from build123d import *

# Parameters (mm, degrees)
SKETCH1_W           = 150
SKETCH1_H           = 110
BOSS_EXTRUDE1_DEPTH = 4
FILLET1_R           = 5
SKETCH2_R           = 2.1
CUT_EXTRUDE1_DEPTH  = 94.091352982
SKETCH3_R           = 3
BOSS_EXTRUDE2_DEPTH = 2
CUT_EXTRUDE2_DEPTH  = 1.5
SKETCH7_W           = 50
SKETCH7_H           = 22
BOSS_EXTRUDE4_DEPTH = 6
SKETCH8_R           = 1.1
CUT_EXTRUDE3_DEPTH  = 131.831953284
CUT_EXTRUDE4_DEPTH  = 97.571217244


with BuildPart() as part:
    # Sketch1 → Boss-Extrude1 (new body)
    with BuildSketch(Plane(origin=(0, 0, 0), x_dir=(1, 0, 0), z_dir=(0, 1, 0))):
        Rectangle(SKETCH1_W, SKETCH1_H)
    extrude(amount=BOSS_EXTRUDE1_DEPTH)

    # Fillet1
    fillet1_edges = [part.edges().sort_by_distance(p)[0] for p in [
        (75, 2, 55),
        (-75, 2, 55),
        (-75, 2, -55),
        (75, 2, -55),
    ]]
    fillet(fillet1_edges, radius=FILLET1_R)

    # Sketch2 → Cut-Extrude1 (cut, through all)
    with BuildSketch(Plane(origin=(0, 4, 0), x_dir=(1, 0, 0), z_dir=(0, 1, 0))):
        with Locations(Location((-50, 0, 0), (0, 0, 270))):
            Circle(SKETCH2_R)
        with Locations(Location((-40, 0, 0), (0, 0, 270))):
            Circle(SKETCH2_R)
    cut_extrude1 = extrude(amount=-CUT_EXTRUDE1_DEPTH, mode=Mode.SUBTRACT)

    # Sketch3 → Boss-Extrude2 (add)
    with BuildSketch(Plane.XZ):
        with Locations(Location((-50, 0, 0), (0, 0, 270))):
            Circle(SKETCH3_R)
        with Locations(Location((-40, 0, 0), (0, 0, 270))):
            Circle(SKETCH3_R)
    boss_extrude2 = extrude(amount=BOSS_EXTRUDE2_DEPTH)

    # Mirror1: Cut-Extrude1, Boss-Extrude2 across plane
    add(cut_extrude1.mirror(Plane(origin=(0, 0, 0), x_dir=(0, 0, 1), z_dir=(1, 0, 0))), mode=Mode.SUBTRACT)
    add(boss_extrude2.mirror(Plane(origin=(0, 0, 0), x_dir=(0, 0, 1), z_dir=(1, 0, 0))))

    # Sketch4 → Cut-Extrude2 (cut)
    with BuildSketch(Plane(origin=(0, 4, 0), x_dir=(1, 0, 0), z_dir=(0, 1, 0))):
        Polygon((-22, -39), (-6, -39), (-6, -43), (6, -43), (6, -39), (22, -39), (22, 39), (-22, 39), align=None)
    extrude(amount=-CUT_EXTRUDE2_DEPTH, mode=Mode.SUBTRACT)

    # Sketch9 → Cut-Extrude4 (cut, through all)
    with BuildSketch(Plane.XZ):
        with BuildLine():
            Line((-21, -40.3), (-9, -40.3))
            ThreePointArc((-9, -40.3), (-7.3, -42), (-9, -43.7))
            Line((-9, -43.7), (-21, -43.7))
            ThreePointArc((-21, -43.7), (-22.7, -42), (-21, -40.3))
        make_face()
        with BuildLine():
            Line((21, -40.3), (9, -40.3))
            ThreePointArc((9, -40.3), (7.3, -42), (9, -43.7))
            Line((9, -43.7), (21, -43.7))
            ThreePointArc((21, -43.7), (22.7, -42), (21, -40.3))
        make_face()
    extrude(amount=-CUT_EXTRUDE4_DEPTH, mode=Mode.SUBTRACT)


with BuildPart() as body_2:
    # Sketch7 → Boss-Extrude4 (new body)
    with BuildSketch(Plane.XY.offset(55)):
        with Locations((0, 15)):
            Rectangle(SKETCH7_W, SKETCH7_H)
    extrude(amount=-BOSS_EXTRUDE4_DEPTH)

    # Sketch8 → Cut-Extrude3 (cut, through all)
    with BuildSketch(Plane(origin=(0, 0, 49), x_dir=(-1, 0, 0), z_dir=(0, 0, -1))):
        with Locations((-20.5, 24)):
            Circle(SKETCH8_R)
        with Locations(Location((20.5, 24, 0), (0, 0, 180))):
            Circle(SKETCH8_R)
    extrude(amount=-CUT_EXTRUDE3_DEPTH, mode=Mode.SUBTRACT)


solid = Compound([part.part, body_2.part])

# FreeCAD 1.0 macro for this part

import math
import FreeCAD as App
import Part
import Sketcher
Q = App.Units.Quantity


def edges_at(feature, points):
    """Names of the edges that pass closest to the given points."""
    edges = feature.Shape.Edges
    near = lambda p: min(range(len(edges)), key=lambda i: edges[i].distToShape(Part.Vertex(*p))[0])
    return sorted({f"Edge{near(p) + 1}" for p in points})


def add_polygon(sketch, points):
    """Adds a closed chain of lines whose ends are joined by coincident constraints."""
    first, n = sketch.GeometryCount, len(points)
    for a, b in zip(points, points[1:] + points[:1]):
        sketch.addGeometry(Part.LineSegment(App.Vector(*a, 0), App.Vector(*b, 0)), False)
    for i in range(n):
        sketch.addConstraint(Sketcher.Constraint("Coincident", first + i, 2, first + (i + 1) % n, 1))

doc = App.newDocument("Part")
body = doc.addObject("PartDesign::Body", "Body")

# Sketch on XZ plane
sketch1 = doc.addObject("Sketcher::SketchObject", "Sketch")
body.addObject(sketch1)
sketch1.AttachmentSupport = (doc.XZ_Plane, [""])
sketch1.MapMode = "FlatFace"
add_polygon(sketch1, [(-75, -55), (-75, 55), (75, 55), (75, -55)])  # lines 0-3
sketch1.addConstraint([
    Sketcher.Constraint("Vertical", 0),
    Sketcher.Constraint("Horizontal", 1),
    Sketcher.Constraint("Vertical", 2),
    Sketcher.Constraint("Horizontal", 3),
    Sketcher.Constraint("Symmetric", 0, 2, 2, 2, -1, 1),
    Sketcher.Constraint("DistanceX", 1, 1, 1, 2, Q("150 mm")),
    Sketcher.Constraint("DistanceY", 0, 1, 0, 2, Q("110 mm")),
])
pad1 = doc.addObject("PartDesign::Pad", "Pad")
body.addObject(pad1)
pad1.Profile = sketch1
pad1.Length = 4
pad1.Reversed = True
doc.recompute()

fillet = doc.addObject("PartDesign::Fillet", "Fillet")
body.addObject(fillet)
fillet.Base = (pad1, edges_at(pad1, [
    (75, 2, 55),
    (-75, 2, 55),
    (-75, 2, -55),
    (75, 2, -55),
]))
fillet.Radius = 5

# Sketch on XZ plane
sketch2 = doc.addObject("Sketcher::SketchObject", "Sketch001")
body.addObject(sketch2)
sketch2.AttachmentSupport = (doc.XZ_Plane, [""])
sketch2.MapMode = "FlatFace"
sketch2.AttachmentOffset = App.Placement(App.Vector(0, 0, -4), App.Rotation())
sketch2.addGeometry([
    Part.Circle(App.Vector(-50, 0, 0), App.Vector(0, 0, 1), 2.1),
    Part.Circle(App.Vector(-40, 0, 0), App.Vector(0, 0, 1), 2.1),
], False)
sketch2.addConstraint([
    Sketcher.Constraint("Equal", 0, 1),
    Sketcher.Constraint("PointOnObject", 0, 3, -1),
    Sketcher.Constraint("PointOnObject", 1, 3, -1),
    Sketcher.Constraint("Diameter", 0, Q("4.2 mm")),
    Sketcher.Constraint("DistanceX", 0, 3, -1, 1, Q("50 mm")),
    Sketcher.Constraint("DistanceX", 1, 3, -1, 1, Q("40 mm")),
])
pocket1 = doc.addObject("PartDesign::Pocket", "Pocket")
body.addObject(pocket1)
pocket1.Profile = sketch2
pocket1.Type = "ThroughAll"
pocket1.Reversed = True

# Sketch on XZ plane
sketch3 = doc.addObject("Sketcher::SketchObject", "Sketch002")
body.addObject(sketch3)
sketch3.AttachmentSupport = (doc.XZ_Plane, [""])
sketch3.MapMode = "FlatFace"
sketch3.addGeometry([
    Part.Circle(App.Vector(-50, 0, 0), App.Vector(0, 0, 1), 3),
    Part.Circle(App.Vector(-40, 0, 0), App.Vector(0, 0, 1), 3),
], False)
sketch3.addConstraint([
    Sketcher.Constraint("Equal", 0, 1),
    Sketcher.Constraint("PointOnObject", 0, 3, -1),
    Sketcher.Constraint("PointOnObject", 1, 3, -1),
    Sketcher.Constraint("Diameter", 0, Q("6 mm")),
    Sketcher.Constraint("DistanceX", 0, 3, -1, 1, Q("50 mm")),
    Sketcher.Constraint("DistanceX", 1, 3, -1, 1, Q("40 mm")),
])
pad2 = doc.addObject("PartDesign::Pad", "Pad001")
body.addObject(pad2)
pad2.Profile = sketch3
pad2.Length = 2
doc.recompute()

mirrored = doc.addObject("PartDesign::Mirrored", "Mirrored")
body.addObject(mirrored)
mirrored.Originals = [pocket1, pad2]
mirrored.MirrorPlane = (doc.YZ_Plane, [""])
body.Tip = mirrored

# Sketch on XZ plane
sketch4 = doc.addObject("Sketcher::SketchObject", "Sketch003")
body.addObject(sketch4)
sketch4.AttachmentSupport = (doc.XZ_Plane, [""])
sketch4.MapMode = "FlatFace"
sketch4.AttachmentOffset = App.Placement(App.Vector(0, 0, -4), App.Rotation())
add_polygon(sketch4, [(-22, 39), (-6, 39), (-6, 43), (6, 43), (6, 39), (22, 39), (22, -39), (-22, -39)])  # lines 0-7
sketch4.addConstraint([
    Sketcher.Constraint("Horizontal", 0),
    Sketcher.Constraint("Vertical", 1),
    Sketcher.Constraint("Horizontal", 2),
    Sketcher.Constraint("Vertical", 3),
    Sketcher.Constraint("Horizontal", 4),
    Sketcher.Constraint("Vertical", 5),
    Sketcher.Constraint("Horizontal", 6),
    Sketcher.Constraint("Vertical", 7),
    Sketcher.Constraint("Symmetric", 4, 2, 6, 2, -1, 1),
    Sketcher.Constraint("Symmetric", 0, 2, 3, 2, -2),
    Sketcher.Constraint("DistanceX", 0, 1, 0, 2, Q("16 mm")),
    Sketcher.Constraint("DistanceX", 2, 1, 2, 2, Q("12 mm")),
    Sketcher.Constraint("DistanceY", 1, 1, 1, 2, Q("4 mm")),
    Sketcher.Constraint("DistanceY", 5, 2, 5, 1, Q("78 mm")),
])
pocket2 = doc.addObject("PartDesign::Pocket", "Pocket001")
body.addObject(pocket2)
pocket2.Profile = sketch4
pocket2.Length = 1.5
pocket2.Reversed = True

# Sketch on XZ plane
sketch5 = doc.addObject("Sketcher::SketchObject", "Sketch004")
body.addObject(sketch5)
sketch5.AttachmentSupport = (doc.XZ_Plane, [""])
sketch5.MapMode = "FlatFace"
sketch5.addGeometry([
    Part.LineSegment(App.Vector(-9, -40.3, 0), App.Vector(-21, -40.3, 0)),  # 0
    Part.ArcOfCircle(Part.Circle(App.Vector(-21, -42, 0), App.Vector(0, 0, 1), 1.7), math.radians(90), math.radians(270)),  # 1
    Part.LineSegment(App.Vector(-21, -43.7, 0), App.Vector(-9, -43.7, 0)),  # 2
    Part.ArcOfCircle(Part.Circle(App.Vector(-9, -42, 0), App.Vector(0, 0, 1), 1.7), math.radians(-90), math.radians(90)),  # 3
    Part.LineSegment(App.Vector(21, -40.3, 0), App.Vector(9, -40.3, 0)),  # 4
    Part.ArcOfCircle(Part.Circle(App.Vector(9, -42, 0), App.Vector(0, 0, 1), 1.7), math.radians(90), math.radians(270)),  # 5
    Part.LineSegment(App.Vector(9, -43.7, 0), App.Vector(21, -43.7, 0)),  # 6
    Part.ArcOfCircle(Part.Circle(App.Vector(21, -42, 0), App.Vector(0, 0, 1), 1.7), math.radians(-90), math.radians(90)),  # 7
], False)
sketch5.addConstraint([
    Sketcher.Constraint("Tangent", 0, 2, 1, 1),
    Sketcher.Constraint("Tangent", 1, 2, 2, 1),
    Sketcher.Constraint("Tangent", 2, 2, 3, 1),
    Sketcher.Constraint("Tangent", 3, 2, 0, 1),
    Sketcher.Constraint("Tangent", 4, 2, 5, 1),
    Sketcher.Constraint("Tangent", 5, 2, 6, 1),
    Sketcher.Constraint("Tangent", 6, 2, 7, 1),
    Sketcher.Constraint("Tangent", 7, 2, 4, 1),
    Sketcher.Constraint("Horizontal", 0),
    Sketcher.Constraint("Horizontal", 2),
    Sketcher.Constraint("Horizontal", 4),
    Sketcher.Constraint("Horizontal", 6),
    Sketcher.Constraint("Equal", 3, 5),
    Sketcher.Constraint("Symmetric", 3, 3, 5, 3, -2),
    Sketcher.Constraint("Equal", 2, 4),
    Sketcher.Constraint("Radius", 1, Q("1.7 mm")),
    Sketcher.Constraint("DistanceX", 0, 2, 0, 1, Q("12 mm")),
    Sketcher.Constraint("DistanceX", 1, 3, -1, 1, Q("21 mm")),
    Sketcher.Constraint("DistanceY", 1, 3, -1, 1, Q("42 mm")),
])
pocket3 = doc.addObject("PartDesign::Pocket", "Pocket002")
body.addObject(pocket3)
pocket3.Profile = sketch5
pocket3.Type = "ThroughAll"
body2 = doc.addObject("PartDesign::Body", "Body001")

# Sketch on XY plane
sketch6 = doc.addObject("Sketcher::SketchObject", "Sketch005")
body2.addObject(sketch6)
sketch6.AttachmentSupport = (doc.getObject("XY_Plane001"), [""])
sketch6.MapMode = "FlatFace"
sketch6.AttachmentOffset = App.Placement(App.Vector(0, 0, 55), App.Rotation())
add_polygon(sketch6, [(-25, 26), (-25, 4), (25, 4), (25, 26)])  # lines 0-3
sketch6.addConstraint([
    Sketcher.Constraint("Vertical", 0),
    Sketcher.Constraint("Horizontal", 1),
    Sketcher.Constraint("Vertical", 2),
    Sketcher.Constraint("Horizontal", 3),
    Sketcher.Constraint("DistanceX", 1, 1, 1, 2, Q("50 mm")),
    Sketcher.Constraint("DistanceY", 0, 2, 0, 1, Q("22 mm")),
    Sketcher.Constraint("DistanceX", 0, 2, -1, 1, Q("25 mm")),
    Sketcher.Constraint("DistanceY", -1, 1, 0, 2, Q("4 mm")),
])
pad3 = doc.addObject("PartDesign::Pad", "Pad002")
body2.addObject(pad3)
pad3.Profile = sketch6
pad3.Length = 6
pad3.Reversed = True

# Sketch on XY plane
sketch7 = doc.addObject("Sketcher::SketchObject", "Sketch006")
body2.addObject(sketch7)
sketch7.AttachmentSupport = (doc.getObject("XY_Plane001"), [""])
sketch7.MapMode = "FlatFace"
sketch7.AttachmentOffset = App.Placement(App.Vector(0, 0, 49), App.Rotation())
sketch7.addGeometry([
    Part.Circle(App.Vector(20.5, 24, 0), App.Vector(0, 0, 1), 1.1),
    Part.Circle(App.Vector(-20.5, 24, 0), App.Vector(0, 0, 1), 1.1),
], False)
sketch7.addConstraint([
    Sketcher.Constraint("Equal", 0, 1),
    Sketcher.Constraint("Symmetric", 0, 3, 1, 3, -2),
    Sketcher.Constraint("Diameter", 0, Q("2.2 mm")),
    Sketcher.Constraint("DistanceY", -1, 1, 0, 3, Q("24 mm")),
    Sketcher.Constraint("DistanceX", 1, 3, 0, 3, Q("41 mm")),
])
pocket4 = doc.addObject("PartDesign::Pocket", "Pocket003")
body2.addObject(pocket4)
pocket4.Profile = sketch7
pocket4.Type = "ThroughAll"
pocket4.Reversed = True

doc.recompute()
